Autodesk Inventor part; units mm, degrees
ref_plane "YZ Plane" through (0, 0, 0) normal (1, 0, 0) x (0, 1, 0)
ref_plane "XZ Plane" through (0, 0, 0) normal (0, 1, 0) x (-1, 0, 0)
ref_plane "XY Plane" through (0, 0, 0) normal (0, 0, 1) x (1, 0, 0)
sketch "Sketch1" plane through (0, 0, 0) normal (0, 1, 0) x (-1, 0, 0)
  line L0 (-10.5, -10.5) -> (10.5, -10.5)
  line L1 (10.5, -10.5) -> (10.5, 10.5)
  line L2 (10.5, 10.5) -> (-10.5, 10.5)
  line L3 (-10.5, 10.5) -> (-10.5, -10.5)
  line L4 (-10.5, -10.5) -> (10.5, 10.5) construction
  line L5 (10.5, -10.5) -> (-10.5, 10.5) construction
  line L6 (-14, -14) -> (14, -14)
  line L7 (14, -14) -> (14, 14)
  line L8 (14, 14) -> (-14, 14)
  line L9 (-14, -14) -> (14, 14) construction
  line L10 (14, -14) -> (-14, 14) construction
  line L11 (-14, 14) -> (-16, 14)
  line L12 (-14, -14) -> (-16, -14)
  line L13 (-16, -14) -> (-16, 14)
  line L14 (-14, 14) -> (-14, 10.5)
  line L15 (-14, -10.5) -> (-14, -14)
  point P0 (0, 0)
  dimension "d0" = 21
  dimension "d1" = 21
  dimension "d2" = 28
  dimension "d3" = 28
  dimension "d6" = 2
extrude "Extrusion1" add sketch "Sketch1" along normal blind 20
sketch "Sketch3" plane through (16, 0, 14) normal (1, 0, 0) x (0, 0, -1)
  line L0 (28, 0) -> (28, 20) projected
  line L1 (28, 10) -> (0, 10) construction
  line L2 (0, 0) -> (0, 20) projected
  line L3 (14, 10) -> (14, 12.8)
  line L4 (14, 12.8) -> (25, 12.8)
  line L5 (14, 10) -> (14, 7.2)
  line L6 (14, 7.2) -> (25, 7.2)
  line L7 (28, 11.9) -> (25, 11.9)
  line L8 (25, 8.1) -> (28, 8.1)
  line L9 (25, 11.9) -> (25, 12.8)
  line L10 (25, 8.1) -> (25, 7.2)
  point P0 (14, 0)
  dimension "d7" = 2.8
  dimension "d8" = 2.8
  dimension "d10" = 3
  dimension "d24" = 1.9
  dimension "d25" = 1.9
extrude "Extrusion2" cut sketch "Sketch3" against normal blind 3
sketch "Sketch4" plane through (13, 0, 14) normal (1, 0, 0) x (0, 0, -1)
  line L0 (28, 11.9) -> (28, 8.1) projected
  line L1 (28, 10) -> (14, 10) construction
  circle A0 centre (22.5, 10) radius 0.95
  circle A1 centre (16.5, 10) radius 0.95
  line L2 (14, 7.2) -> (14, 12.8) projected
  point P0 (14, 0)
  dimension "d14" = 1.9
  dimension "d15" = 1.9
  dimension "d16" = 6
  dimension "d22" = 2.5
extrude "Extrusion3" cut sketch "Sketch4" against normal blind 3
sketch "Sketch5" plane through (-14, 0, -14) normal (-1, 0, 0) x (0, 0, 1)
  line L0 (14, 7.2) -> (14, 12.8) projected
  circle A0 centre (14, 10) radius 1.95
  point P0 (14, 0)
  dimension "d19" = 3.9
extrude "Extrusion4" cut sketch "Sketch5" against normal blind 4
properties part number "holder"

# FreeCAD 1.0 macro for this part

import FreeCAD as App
import Part
import Sketcher
Q = App.Units.Quantity


def add_polygon(sketch, points):
    """Adds a closed chain of lines whose ends are joined by coincident constraints."""
    first, n = sketch.GeometryCount, len(points)
    for a, b in zip(points, points[1:] + points[:1]):
        sketch.addGeometry(Part.LineSegment(App.Vector(*a, 0), App.Vector(*b, 0)), False)
    for i in range(n):
        sketch.addConstraint(Sketcher.Constraint("Coincident", first + i, 2, first + (i + 1) % n, 1))

doc = App.newDocument("Part")
body = doc.addObject("PartDesign::Body", "Body")

sketch1 = body.newObject("Sketcher::SketchObject", "Sketch")
sketch1.AttachmentSupport = (doc.getObject("XZ_Plane"), [""])
sketch1.MapMode = "FlatFace"
add_polygon(sketch1, [(16, -14), (-14, -14), (-14, 14), (16, 14)])
add_polygon(sketch1, [(-10, -10), (10, -10), (10, 10), (-10, 10)])
sketch1.addConstraint([
    Sketcher.Constraint("Horizontal", 0),
    Sketcher.Constraint("Vertical", 1),
    Sketcher.Constraint("Horizontal", 2),
    Sketcher.Constraint("Vertical", 3),
    Sketcher.Constraint("Horizontal", 4),
    Sketcher.Constraint("Vertical", 5),
    Sketcher.Constraint("Horizontal", 6),
    Sketcher.Constraint("Vertical", 7),
    Sketcher.Constraint("Symmetric", 4, 2, 6, 2, -1, 1),
    Sketcher.Constraint("Equal", 6, 5),
    Sketcher.Constraint("DistanceX", 4, 1, 4, 2, Q("21 mm")),
    Sketcher.Constraint("DistanceY", 1, 1, 1, 2, Q("28 mm")),
    Sketcher.Constraint("DistanceX", 0, 2, 0, 1, Q("30 mm")),
    Sketcher.Constraint("DistanceX", 0, 2, -1, 1, Q("14 mm")),
    Sketcher.Constraint("DistanceY", 0, 2, -1, 1, Q("14 mm")),
])
pad1 = body.newObject("PartDesign::Pad", "Pad")
pad1.Profile = sketch1
pad1.Length = 20
pad1.Reversed = True

sketch2 = body.newObject("Sketcher::SketchObject", "Sketch001")
sketch2.AttachmentSupport = (doc.getObject("YZ_Plane"), [""])
sketch2.MapMode = "FlatFace"
sketch2.AttachmentOffset = App.Placement(App.Vector(0, 0, 16), App.Rotation())
add_polygon(sketch2, [(8.1, -11), (8.1, -14), (11.9, -14), (11.9, -11), (12.8, -11), (12.8, 0), (7.2, 0), (7.2, -11)])
sketch2.addConstraint([
    Sketcher.Constraint("Vertical", 0),
    Sketcher.Constraint("Horizontal", 1),
    Sketcher.Constraint("Vertical", 2),
    Sketcher.Constraint("Horizontal", 3),
    Sketcher.Constraint("Vertical", 4),
    Sketcher.Constraint("Horizontal", 5),
    Sketcher.Constraint("Vertical", 6),
    Sketcher.Constraint("Horizontal", 7),
    Sketcher.Constraint("PointOnObject", 4, 2, -1),
    Sketcher.Constraint("Horizontal", 3, 2, 6, 2),
    Sketcher.Constraint("Equal", 3, 7),
    Sketcher.Constraint("DistanceY", 0, 2, 0, 1, Q("3 mm")),
    Sketcher.Constraint("DistanceY", 4, 1, 4, 2, Q("11 mm")),
    Sketcher.Constraint("DistanceX", 1, 1, 1, 2, Q("3.8 mm")),
    Sketcher.Constraint("DistanceX", 3, 1, 3, 2, Q("0.9 mm")),
    Sketcher.Constraint("DistanceX", -1, 1, 0, 2, Q("8.1 mm")),
])
pocket1 = body.newObject("PartDesign::Pocket", "Pocket")
pocket1.Profile = sketch2
pocket1.Length = 3

sketch3 = body.newObject("Sketcher::SketchObject", "Sketch002")
sketch3.AttachmentSupport = (doc.getObject("YZ_Plane"), [""])
sketch3.MapMode = "FlatFace"
sketch3.AttachmentOffset = App.Placement(App.Vector(0, 0, 13), App.Rotation())
sketch3.addGeometry([
    Part.Circle(App.Vector(10, -8.5, 0), App.Vector(0, 0, 1), 0.9),
    Part.Circle(App.Vector(10, -2.5, 0), App.Vector(0, 0, 1), 0.9),
], False)
sketch3.addConstraint([
    Sketcher.Constraint("Equal", 0, 1),
    Sketcher.Constraint("Vertical", 0, 3, 1, 3),
    Sketcher.Constraint("Diameter", 0, Q("1.9 mm")),
    Sketcher.Constraint("DistanceY", 0, 3, 1, 3, Q("6 mm")),
    Sketcher.Constraint("DistanceY", 1, 3, -1, 1, Q("2.5 mm")),
    Sketcher.Constraint("DistanceX", -1, 1, 0, 3, Q("10 mm")),
])
pocket2 = body.newObject("PartDesign::Pocket", "Pocket001")
pocket2.Profile = sketch3
pocket2.Length = 3

sketch4 = body.newObject("Sketcher::SketchObject", "Sketch003")
sketch4.AttachmentSupport = (doc.getObject("YZ_Plane"), [""])
sketch4.MapMode = "FlatFace"
sketch4.AttachmentOffset = App.Placement(App.Vector(0, 0, -14), App.Rotation())
sketch4.addGeometry(Part.Circle(App.Vector(10, 0, 0), App.Vector(0, 0, 1), 1.9), False)
sketch4.addConstraint([
    Sketcher.Constraint("PointOnObject", 0, 3, -1),
    Sketcher.Constraint("Diameter", 0, Q("3.9 mm")),
    Sketcher.Constraint("DistanceX", -1, 1, 0, 3, Q("10 mm")),
])
pocket3 = body.newObject("PartDesign::Pocket", "Pocket002")
pocket3.Profile = sketch4
pocket3.Length = 4
pocket3.Reversed = True

doc.recompute()
